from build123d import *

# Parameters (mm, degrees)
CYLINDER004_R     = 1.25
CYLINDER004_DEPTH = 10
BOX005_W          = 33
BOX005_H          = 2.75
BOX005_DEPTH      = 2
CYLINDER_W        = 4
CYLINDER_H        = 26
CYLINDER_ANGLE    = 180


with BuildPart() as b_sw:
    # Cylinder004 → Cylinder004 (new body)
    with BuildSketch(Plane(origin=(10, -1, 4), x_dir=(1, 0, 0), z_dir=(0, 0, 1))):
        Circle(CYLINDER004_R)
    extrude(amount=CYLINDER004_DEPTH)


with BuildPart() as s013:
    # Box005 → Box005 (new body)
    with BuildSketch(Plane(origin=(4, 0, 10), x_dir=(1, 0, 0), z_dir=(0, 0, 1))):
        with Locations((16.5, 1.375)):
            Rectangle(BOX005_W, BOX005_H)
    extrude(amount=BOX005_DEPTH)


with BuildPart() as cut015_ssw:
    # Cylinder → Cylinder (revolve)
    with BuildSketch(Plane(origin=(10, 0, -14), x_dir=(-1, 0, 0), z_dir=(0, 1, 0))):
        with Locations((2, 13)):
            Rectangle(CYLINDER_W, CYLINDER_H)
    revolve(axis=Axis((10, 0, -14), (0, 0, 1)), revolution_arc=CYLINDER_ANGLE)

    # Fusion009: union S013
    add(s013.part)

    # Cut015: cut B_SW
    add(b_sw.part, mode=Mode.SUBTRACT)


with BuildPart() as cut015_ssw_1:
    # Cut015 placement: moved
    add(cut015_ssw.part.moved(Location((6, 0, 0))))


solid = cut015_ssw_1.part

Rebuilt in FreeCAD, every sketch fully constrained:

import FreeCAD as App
import Part
import Sketcher
from FreeCAD import Vector


def add_polygon(sketch, points):
    """Adds a closed chain of lines whose ends are joined by coincident constraints."""
    first, n = sketch.GeometryCount, len(points)
    for a, b in zip(points, points[1:] + points[:1]):
        sketch.addGeometry(Part.LineSegment(App.Vector(*a, 0), App.Vector(*b, 0)), False)
    for i in range(n):
        sketch.addConstraint(Sketcher.Constraint("Coincident", first + i, 2, first + (i + 1) % n, 1))

doc = App.newDocument("Part")
body = doc.addObject("PartDesign::Body", "Body")

sketch1 = body.newObject("Sketcher::SketchObject", "Sketch")
sketch1.AttachmentSupport = (doc.getObject("XY_Plane"), [""])
sketch1.MapMode = "FlatFace"
sketch1.AttachmentOffset = App.Placement(Vector(0, 0, 4), App.Rotation())
sketch1.addGeometry(Part.Circle(Vector(10, -1, 0), Vector(0, 0, 1), 1.25), False)
sketch1.addConstraint(Sketcher.Constraint("Diameter", 0, 2.5))
sketch1.addConstraint(Sketcher.Constraint("DistanceX", -1, 1, 0, 3, 10.0))
sketch1.addConstraint(Sketcher.Constraint("DistanceY", 0, 3, -1, 1, 1.0))
pad1 = body.newObject("PartDesign::Pad", "Pad")
pad1.Profile = sketch1
pad1.Length = 10
body2 = doc.addObject("PartDesign::Body", "Body001")

sketch2 = body2.newObject("Sketcher::SketchObject", "Sketch001")
sketch2.AttachmentSupport = (doc.getObject("XY_Plane001"), [""])
sketch2.MapMode = "FlatFace"
sketch2.AttachmentOffset = App.Placement(Vector(0, 0, 10), App.Rotation())
add_polygon(sketch2, [(4, 2.75), (4, 0), (37, 0), (37, 2.75)])
sketch2.addConstraint(Sketcher.Constraint("Vertical", 0))
sketch2.addConstraint(Sketcher.Constraint("Horizontal", 1))
sketch2.addConstraint(Sketcher.Constraint("Vertical", 2))
sketch2.addConstraint(Sketcher.Constraint("Horizontal", 3))
sketch2.addConstraint(Sketcher.Constraint("PointOnObject", 0, 2, -1))
sketch2.addConstraint(Sketcher.Constraint("DistanceX", 1, 1, 1, 2, 33.0))
sketch2.addConstraint(Sketcher.Constraint("DistanceX", -1, 1, 0, 2, 4.0))
sketch2.addConstraint(Sketcher.Constraint("DistanceY", 0, 2, 0, 1, 2.75))
pad2 = body2.newObject("PartDesign::Pad", "Pad001")
pad2.Profile = sketch2
pad2.Length = 2
body3 = doc.addObject("PartDesign::Body", "Body002")

sketch3 = body3.newObject("Sketcher::SketchObject", "Sketch002")
sketch3.AttachmentSupport = (doc.getObject("XZ_Plane002"), [""])
sketch3.MapMode = "FlatFace"
add_polygon(sketch3, [(10, 12), (10, -14), (6, -14), (6, 12)])
sketch3.addGeometry(Part.LineSegment(Vector(10, -14, 0), Vector(10, 12, 0)), True)
sketch3.addConstraint(Sketcher.Constraint("Vertical", 0))
sketch3.addConstraint(Sketcher.Constraint("Horizontal", 1))
sketch3.addConstraint(Sketcher.Constraint("Vertical", 2))
sketch3.addConstraint(Sketcher.Constraint("Horizontal", 3))
sketch3.addConstraint(Sketcher.Constraint("Vertical", 4))
sketch3.addConstraint(Sketcher.Constraint("Coincident", 4, 1, 0, 2))
sketch3.addConstraint(Sketcher.Constraint("Horizontal", 2, 2, 4, 2))
sketch3.addConstraint(Sketcher.Constraint("DistanceX", 1, 2, 1, 1, 4.0))
sketch3.addConstraint(Sketcher.Constraint("DistanceY", 0, 2, 0, 1, 26.0))
sketch3.addConstraint(Sketcher.Constraint("DistanceX", -1, 1, 0, 2, 10.0))
sketch3.addConstraint(Sketcher.Constraint("DistanceY", 0, 2, -1, 1, 14.0))
revolution = body3.newObject("PartDesign::Revolution", "Revolution")
revolution.Profile = sketch3
revolution.ReferenceAxis = (sketch3, ["Axis0"])
revolution.Angle = 180
doc.recompute()

boolean = body3.newObject("PartDesign::Boolean", "Boolean")
boolean.Type = "Fuse"
boolean.addObjects([body2])
doc.recompute()

boolean2 = body3.newObject("PartDesign::Boolean", "Boolean001")
boolean2.Type = "Cut"
boolean2.addObjects([body])
body4 = doc.addObject("PartDesign::Body", "Body003")
doc.recompute()

body3.Placement = App.Placement(Vector(6, 0, 0), App.Rotation(Vector(0, 0, 1), 0))
boolean3 = body4.newObject("PartDesign::Boolean", "Boolean002")
boolean3.Type = "Fuse"
boolean3.addObjects([body3])

doc.recompute()
